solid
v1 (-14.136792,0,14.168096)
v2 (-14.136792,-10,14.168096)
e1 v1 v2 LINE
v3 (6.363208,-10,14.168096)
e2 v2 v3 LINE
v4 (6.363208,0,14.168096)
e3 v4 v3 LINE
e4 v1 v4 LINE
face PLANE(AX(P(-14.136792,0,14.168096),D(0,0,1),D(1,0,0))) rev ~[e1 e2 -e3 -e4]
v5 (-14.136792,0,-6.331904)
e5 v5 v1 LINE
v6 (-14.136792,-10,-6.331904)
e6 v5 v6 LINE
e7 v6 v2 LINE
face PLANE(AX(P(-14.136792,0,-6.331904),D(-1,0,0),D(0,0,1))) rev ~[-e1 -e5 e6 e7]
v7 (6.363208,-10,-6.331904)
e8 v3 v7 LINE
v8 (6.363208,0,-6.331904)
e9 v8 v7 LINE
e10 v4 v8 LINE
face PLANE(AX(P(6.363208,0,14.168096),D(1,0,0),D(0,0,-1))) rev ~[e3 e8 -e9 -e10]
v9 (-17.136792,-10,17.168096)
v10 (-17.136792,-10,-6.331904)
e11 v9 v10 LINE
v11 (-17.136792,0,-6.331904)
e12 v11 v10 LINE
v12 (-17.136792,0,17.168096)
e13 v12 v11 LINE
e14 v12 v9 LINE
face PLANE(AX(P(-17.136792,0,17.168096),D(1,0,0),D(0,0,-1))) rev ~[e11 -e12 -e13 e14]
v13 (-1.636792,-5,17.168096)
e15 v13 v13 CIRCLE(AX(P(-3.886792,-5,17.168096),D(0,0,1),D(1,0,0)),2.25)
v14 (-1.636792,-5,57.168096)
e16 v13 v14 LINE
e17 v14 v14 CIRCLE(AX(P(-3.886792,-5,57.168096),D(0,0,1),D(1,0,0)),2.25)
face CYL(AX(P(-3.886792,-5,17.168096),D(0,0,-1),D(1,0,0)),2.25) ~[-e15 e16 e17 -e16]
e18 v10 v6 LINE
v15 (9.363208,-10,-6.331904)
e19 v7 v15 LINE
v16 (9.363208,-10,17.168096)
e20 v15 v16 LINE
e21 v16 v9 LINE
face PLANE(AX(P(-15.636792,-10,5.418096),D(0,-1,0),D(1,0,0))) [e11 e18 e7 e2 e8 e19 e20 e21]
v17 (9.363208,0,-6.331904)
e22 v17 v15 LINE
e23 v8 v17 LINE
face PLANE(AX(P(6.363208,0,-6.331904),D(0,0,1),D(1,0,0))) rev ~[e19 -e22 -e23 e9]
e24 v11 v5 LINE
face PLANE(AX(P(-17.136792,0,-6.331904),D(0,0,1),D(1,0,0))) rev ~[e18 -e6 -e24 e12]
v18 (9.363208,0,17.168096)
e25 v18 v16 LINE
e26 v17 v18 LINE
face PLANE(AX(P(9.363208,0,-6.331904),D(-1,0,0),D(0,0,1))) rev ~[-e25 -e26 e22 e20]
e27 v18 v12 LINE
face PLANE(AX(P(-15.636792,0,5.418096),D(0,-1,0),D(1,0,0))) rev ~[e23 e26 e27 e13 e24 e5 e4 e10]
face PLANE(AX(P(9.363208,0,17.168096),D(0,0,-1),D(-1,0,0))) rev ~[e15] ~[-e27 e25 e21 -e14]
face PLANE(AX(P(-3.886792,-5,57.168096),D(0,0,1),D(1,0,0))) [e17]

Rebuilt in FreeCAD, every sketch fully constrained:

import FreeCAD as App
import Part
import Sketcher

V = App.Vector

doc = App.newDocument("Part")
body = doc.addObject("PartDesign::Body", "Body")

# Sketch on XZ plane
sketch1 = doc.addObject("Sketcher::SketchObject", "Sketch")
body.addObject(sketch1)
sketch1.AttachmentSupport = (doc.XZ_Plane, [""])
sketch1.MapMode = "FlatFace"
sketch1.addGeometry([
    Part.LineSegment(V(-17.136792, -6.331904, 0), V(-14.136792, -6.331904, 0)),  # 0
    Part.LineSegment(V(-14.136792, -6.331904, 0), V(-14.136792, 14.168096, 0)),  # 1
    Part.LineSegment(V(-14.136792, 14.168096, 0), V(6.363208, 14.168096, 0)),  # 2
    Part.LineSegment(V(6.363208, 14.168096, 0), V(6.363208, -6.331904, 0)),  # 3
    Part.LineSegment(V(6.363208, -6.331904, 0), V(9.363208, -6.331904, 0)),  # 4
    Part.LineSegment(V(9.363208, -6.331904, 0), V(9.363208, 17.168096, 0)),  # 5
    Part.LineSegment(V(9.363208, 17.168096, 0), V(-17.136792, 17.168096, 0)),  # 6
    Part.LineSegment(V(-17.136792, 17.168096, 0), V(-17.136792, -6.331904, 0)),  # 7
], False)
sketch1.addConstraint([
    Sketcher.Constraint("Coincident", 0, 2, 1, 1),
    Sketcher.Constraint("Coincident", 1, 2, 2, 1),
    Sketcher.Constraint("Coincident", 2, 2, 3, 1),
    Sketcher.Constraint("Coincident", 3, 2, 4, 1),
    Sketcher.Constraint("Coincident", 4, 2, 5, 1),
    Sketcher.Constraint("Coincident", 5, 2, 6, 1),
    Sketcher.Constraint("Coincident", 6, 2, 7, 1),
    Sketcher.Constraint("Coincident", 7, 2, 0, 1),
    Sketcher.Constraint("Horizontal", 0),
    Sketcher.Constraint("Vertical", 1),
    Sketcher.Constraint("Horizontal", 2),
    Sketcher.Constraint("Vertical", 3),
    Sketcher.Constraint("Horizontal", 4),
    Sketcher.Constraint("Vertical", 5),
    Sketcher.Constraint("Horizontal", 6),
    Sketcher.Constraint("Vertical", 7),
    Sketcher.Constraint("Horizontal", 0, 2, 3, 2),
    Sketcher.Constraint("Equal", 0, 4),
    Sketcher.Constraint("Equal", 2, 1),
    Sketcher.Constraint("DistanceX", 0, 1, 0, 2, 3.0),
    Sketcher.Constraint("DistanceX", 2, 1, 2, 2, 20.5),
    Sketcher.Constraint("DistanceY", 5, 1, 5, 2, 23.5),
    Sketcher.Constraint("DistanceX", -1, 1, 2, 2, 6.363208),
    Sketcher.Constraint("DistanceY", 0, 2, -1, 1, 6.331904),
])
pad1 = doc.addObject("PartDesign::Pad", "Pad")
body.addObject(pad1)
pad1.Profile = sketch1
pad1.Length = 10

# Sketch on XY plane
sketch2 = doc.addObject("Sketcher::SketchObject", "Sketch001")
body.addObject(sketch2)
sketch2.AttachmentSupport = (doc.XY_Plane, [""])
sketch2.MapMode = "FlatFace"
sketch2.AttachmentOffset = App.Placement(V(0, 0, 17.168096), App.Rotation())
sketch2.addGeometry(Part.Circle(V(-3.886792, -5, 0), V(0, 0, 1), 2.25), False)
sketch2.addConstraint([
    Sketcher.Constraint("Diameter", 0, 4.5),
    Sketcher.Constraint("DistanceY", 0, 3, -1, 1, 5.0),
    Sketcher.Constraint("DistanceX", 0, 3, -1, 1, 3.886792),
])
pad2 = doc.addObject("PartDesign::Pad", "Pad001")
body.addObject(pad2)
pad2.Profile = sketch2
pad2.Length = 40

doc.recompute()
